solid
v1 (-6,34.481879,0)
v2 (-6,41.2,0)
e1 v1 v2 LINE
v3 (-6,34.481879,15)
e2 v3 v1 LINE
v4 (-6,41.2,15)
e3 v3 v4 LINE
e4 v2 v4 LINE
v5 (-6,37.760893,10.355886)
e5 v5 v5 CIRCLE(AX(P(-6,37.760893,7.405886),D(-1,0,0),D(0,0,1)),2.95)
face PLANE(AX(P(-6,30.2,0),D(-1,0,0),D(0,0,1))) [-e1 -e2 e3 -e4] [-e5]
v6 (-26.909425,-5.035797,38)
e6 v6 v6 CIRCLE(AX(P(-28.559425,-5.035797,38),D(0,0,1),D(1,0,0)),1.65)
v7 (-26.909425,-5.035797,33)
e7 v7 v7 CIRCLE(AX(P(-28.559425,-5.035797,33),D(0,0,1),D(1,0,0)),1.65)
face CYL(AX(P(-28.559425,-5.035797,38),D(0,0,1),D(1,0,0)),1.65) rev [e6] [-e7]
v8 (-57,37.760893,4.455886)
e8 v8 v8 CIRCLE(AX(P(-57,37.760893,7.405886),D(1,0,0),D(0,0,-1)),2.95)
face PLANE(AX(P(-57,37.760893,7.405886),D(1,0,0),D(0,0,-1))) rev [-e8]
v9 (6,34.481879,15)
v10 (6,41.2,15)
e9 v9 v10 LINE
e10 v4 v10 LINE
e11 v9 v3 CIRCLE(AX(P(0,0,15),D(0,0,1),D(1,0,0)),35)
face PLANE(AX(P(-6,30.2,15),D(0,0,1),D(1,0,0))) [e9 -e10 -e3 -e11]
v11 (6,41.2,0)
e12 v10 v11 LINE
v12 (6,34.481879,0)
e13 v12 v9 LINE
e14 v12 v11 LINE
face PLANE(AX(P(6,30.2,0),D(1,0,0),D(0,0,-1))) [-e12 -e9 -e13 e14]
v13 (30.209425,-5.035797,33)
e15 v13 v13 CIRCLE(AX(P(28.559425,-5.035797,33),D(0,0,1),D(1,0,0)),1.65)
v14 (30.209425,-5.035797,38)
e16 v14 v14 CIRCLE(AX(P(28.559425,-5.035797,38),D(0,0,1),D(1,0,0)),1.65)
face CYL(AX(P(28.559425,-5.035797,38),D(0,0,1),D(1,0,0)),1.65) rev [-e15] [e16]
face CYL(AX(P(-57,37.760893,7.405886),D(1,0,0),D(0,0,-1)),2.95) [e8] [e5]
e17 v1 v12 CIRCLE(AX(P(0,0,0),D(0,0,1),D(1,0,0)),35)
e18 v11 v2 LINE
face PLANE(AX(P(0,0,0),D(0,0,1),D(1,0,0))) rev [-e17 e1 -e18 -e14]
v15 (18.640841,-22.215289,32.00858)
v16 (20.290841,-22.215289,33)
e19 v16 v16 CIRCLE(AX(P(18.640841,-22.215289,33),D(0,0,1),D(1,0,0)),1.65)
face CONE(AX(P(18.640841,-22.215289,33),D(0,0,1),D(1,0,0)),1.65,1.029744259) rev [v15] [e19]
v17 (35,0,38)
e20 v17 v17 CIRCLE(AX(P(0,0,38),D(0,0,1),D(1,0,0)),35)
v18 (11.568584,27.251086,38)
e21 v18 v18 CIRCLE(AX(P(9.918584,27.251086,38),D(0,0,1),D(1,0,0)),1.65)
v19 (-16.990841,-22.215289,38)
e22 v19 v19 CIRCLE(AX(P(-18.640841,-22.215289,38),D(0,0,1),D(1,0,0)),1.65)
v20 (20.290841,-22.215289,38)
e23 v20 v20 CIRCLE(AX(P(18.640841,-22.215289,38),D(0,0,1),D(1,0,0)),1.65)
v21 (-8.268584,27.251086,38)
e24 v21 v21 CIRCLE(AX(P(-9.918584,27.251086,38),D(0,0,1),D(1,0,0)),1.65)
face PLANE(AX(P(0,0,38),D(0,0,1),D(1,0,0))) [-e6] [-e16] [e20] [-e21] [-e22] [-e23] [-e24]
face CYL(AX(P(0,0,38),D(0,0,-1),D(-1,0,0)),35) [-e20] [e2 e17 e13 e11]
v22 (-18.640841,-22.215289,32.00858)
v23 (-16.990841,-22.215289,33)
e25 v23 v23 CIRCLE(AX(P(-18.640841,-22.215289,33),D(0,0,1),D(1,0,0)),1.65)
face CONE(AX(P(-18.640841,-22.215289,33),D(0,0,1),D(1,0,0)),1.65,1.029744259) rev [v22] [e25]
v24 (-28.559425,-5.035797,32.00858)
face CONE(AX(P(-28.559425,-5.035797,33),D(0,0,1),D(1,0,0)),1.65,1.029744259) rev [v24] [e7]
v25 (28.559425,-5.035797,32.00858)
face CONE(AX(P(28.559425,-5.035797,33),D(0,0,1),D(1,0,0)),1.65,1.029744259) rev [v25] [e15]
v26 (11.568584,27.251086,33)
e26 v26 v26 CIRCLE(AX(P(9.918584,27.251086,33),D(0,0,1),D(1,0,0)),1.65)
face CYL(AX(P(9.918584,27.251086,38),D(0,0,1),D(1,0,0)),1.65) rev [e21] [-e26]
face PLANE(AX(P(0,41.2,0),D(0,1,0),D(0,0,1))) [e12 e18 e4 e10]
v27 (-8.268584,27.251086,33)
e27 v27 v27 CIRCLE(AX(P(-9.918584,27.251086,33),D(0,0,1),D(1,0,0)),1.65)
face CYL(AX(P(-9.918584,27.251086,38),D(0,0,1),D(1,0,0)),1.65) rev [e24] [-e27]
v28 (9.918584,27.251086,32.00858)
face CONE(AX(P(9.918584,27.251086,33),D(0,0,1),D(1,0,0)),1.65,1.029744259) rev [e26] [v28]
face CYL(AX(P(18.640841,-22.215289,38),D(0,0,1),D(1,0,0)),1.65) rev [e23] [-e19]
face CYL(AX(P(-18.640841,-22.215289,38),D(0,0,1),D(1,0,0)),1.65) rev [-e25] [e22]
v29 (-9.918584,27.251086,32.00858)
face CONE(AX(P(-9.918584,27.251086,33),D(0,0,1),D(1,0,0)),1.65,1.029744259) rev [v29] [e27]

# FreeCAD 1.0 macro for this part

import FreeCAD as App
import Part
import Sketcher
from FreeCAD import Vector

doc = App.newDocument("Part")
params = doc.addObject("Spreadsheet::Sheet", "Params")
for row, (alias, value) in enumerate([
    ("sketch1_diameter", "70 mm"),
    ("pad1_length", "38 mm"),
    ("sketch2_width", "12 mm"),
    ("sketch2_height", "15 mm"),
    ("pad2_length", "11 mm"),
    ("sketch3_diameter", "5.9 mm"),
    ("pad3_length", "63 mm"),
    ("sketch4_diameter", "3.3 mm"),
    ("hole_diameter", "3.3 mm"),
    ("hole_depth", "5 mm"),
], start=1):
    params.set(f"A{row}", alias)
    params.set(f"B{row}", "=" + value)
    params.setAlias(f"B{row}", alias)

body = doc.addObject("PartDesign::Body", "Body")

# Sketch on XY plane
sketch1 = body.newObject("Sketcher::SketchObject", "Sketch")
sketch1.AttachmentSupport = (doc.getObject("XY_Plane"), [""])
sketch1.MapMode = "FlatFace"
sketch1.addGeometry(Part.Circle(Vector(0, 0, 0), Vector(0, 0, 1), 35), False)
sketch1.addConstraint([
    Sketcher.Constraint("Coincident", 0, 3, -1, 1),
    Sketcher.Constraint("Diameter", 0, 70.0),
])
sketch1.setExpression("Constraints[1]", "Params.sketch1_diameter")
pad1 = body.newObject("PartDesign::Pad", "Pad")
pad1.Profile = sketch1
pad1.setExpression("Length", "Params.pad1_length")

# Sketch on XZ plane
sketch2 = body.newObject("Sketcher::SketchObject", "Sketch001")
sketch2.AttachmentSupport = (doc.getObject("XZ_Plane"), [""])
sketch2.MapMode = "FlatFace"
sketch2.AttachmentOffset = App.Placement(Vector(0, 0, -41.2), App.Rotation())
sketch2.addGeometry([
    Part.LineSegment(Vector(-6, 0, 0), Vector(-6, 15, 0)),
    Part.LineSegment(Vector(-6, 15, 0), Vector(6, 15, 0)),
    Part.LineSegment(Vector(6, 15, 0), Vector(6, 0, 0)),
    Part.LineSegment(Vector(6, 0, 0), Vector(-6, 0, 0)),
], False)
sketch2.addConstraint([
    Sketcher.Constraint("Coincident", 0, 2, 1, 1),
    Sketcher.Constraint("Coincident", 1, 2, 2, 1),
    Sketcher.Constraint("Coincident", 2, 2, 3, 1),
    Sketcher.Constraint("Coincident", 3, 2, 0, 1),
    Sketcher.Constraint("Vertical", 0),
    Sketcher.Constraint("Horizontal", 1),
    Sketcher.Constraint("Vertical", 2),
    Sketcher.Constraint("Horizontal", 3),
    Sketcher.Constraint("Symmetric", 2, 2, 3, 2, -1, 1),
    Sketcher.Constraint("DistanceX", 1, 1, 1, 2, 12.0),
    Sketcher.Constraint("DistanceY", 0, 1, 0, 2, 15.0),
])
sketch2.setExpression("Constraints[9]", "Params.sketch2_width")
sketch2.setExpression("Constraints[10]", "Params.sketch2_height")
pad2 = body.newObject("PartDesign::Pad", "Pad001")
pad2.Profile = sketch2
pad2.setExpression("Length", "Params.pad2_length")

# Sketch on YZ plane
sketch3 = body.newObject("Sketcher::SketchObject", "Sketch002")
sketch3.AttachmentSupport = (doc.getObject("YZ_Plane"), [""])
sketch3.MapMode = "FlatFace"
sketch3.AttachmentOffset = App.Placement(Vector(0, 0, 6), App.Rotation())
sketch3.addGeometry(Part.Circle(Vector(37.8, 7.4, 0), Vector(0, 0, 1), 3), False)
sketch3.addConstraint([
    Sketcher.Constraint("Diameter", 0, 5.9),
    Sketcher.Constraint("DistanceX", -1, 1, 0, 3, 37.760893),
    Sketcher.Constraint("DistanceY", -1, 1, 0, 3, 7.405886),
])
sketch3.setExpression("Constraints[0]", "Params.sketch3_diameter")
pad3 = body.newObject("PartDesign::Pad", "Pad002")
pad3.Profile = sketch3
pad3.setExpression("Length", "Params.pad3_length")
pad3.Reversed = True

# Sketch on XY plane
sketch4 = body.newObject("Sketcher::SketchObject", "Sketch003")
sketch4.AttachmentSupport = (doc.getObject("XY_Plane"), [""])
sketch4.MapMode = "FlatFace"
sketch4.AttachmentOffset = App.Placement(Vector(0, 0, 38), App.Rotation())
sketch4.addGeometry([
    Part.Circle(Vector(-9.9, 27.3, 0), Vector(0, 0, 1), 1.6),  # 0
    Part.Circle(Vector(9.9, 27.3, 0), Vector(0, 0, 1), 1.6),  # 1
    Part.Circle(Vector(28.6, -5, 0), Vector(0, 0, 1), 1.6),  # 2
    Part.Circle(Vector(18.6, -22.2, 0), Vector(0, 0, 1), 1.6),  # 3
    Part.Circle(Vector(-18.6, -22.2, 0), Vector(0, 0, 1), 1.6),  # 4
    Part.Circle(Vector(-28.6, -5, 0), Vector(0, 0, 1), 1.6),  # 5
], False)
sketch4.addConstraint([
    Sketcher.Constraint("Equal", 0, 1),
    Sketcher.Constraint("Equal", 1, 2),
    Sketcher.Constraint("Equal", 2, 3),
    Sketcher.Constraint("Equal", 3, 4),
    Sketcher.Constraint("Equal", 4, 5),
    Sketcher.Constraint("Symmetric", 0, 3, 1, 3, -2),
    Sketcher.Constraint("Symmetric", 3, 3, 4, 3, -2),
    Sketcher.Constraint("Symmetric", 2, 3, 5, 3, -2),
    Sketcher.Constraint("Diameter", 0, 3.3),
    Sketcher.Constraint("DistanceX", -1, 1, 3, 3, 18.640841),
    Sketcher.Constraint("DistanceY", 3, 3, -1, 1, 22.215289),
    Sketcher.Constraint("DistanceX", 0, 3, 1, 3, 19.837168),
    Sketcher.Constraint("DistanceX", 1, 3, 2, 3, 18.640841),
    Sketcher.Constraint("DistanceY", 3, 3, 2, 3, 17.179492),
    Sketcher.Constraint("DistanceY", -1, 1, 0, 3, 27.251086),
])
sketch4.setExpression("Constraints[8]", "Params.sketch4_diameter")
doc.recompute()
hole = body.newObject("PartDesign::Hole", "Hole")
hole.Profile = sketch4
hole.ThreadType = "None"
hole.setExpression("Diameter", "Params.hole_diameter")
hole.DepthType = "Dimension"
hole.setExpression("Depth", "Params.hole_depth")
hole.DrillPoint = "Angled"
hole.DrillPointAngle = 118

doc.recompute()
